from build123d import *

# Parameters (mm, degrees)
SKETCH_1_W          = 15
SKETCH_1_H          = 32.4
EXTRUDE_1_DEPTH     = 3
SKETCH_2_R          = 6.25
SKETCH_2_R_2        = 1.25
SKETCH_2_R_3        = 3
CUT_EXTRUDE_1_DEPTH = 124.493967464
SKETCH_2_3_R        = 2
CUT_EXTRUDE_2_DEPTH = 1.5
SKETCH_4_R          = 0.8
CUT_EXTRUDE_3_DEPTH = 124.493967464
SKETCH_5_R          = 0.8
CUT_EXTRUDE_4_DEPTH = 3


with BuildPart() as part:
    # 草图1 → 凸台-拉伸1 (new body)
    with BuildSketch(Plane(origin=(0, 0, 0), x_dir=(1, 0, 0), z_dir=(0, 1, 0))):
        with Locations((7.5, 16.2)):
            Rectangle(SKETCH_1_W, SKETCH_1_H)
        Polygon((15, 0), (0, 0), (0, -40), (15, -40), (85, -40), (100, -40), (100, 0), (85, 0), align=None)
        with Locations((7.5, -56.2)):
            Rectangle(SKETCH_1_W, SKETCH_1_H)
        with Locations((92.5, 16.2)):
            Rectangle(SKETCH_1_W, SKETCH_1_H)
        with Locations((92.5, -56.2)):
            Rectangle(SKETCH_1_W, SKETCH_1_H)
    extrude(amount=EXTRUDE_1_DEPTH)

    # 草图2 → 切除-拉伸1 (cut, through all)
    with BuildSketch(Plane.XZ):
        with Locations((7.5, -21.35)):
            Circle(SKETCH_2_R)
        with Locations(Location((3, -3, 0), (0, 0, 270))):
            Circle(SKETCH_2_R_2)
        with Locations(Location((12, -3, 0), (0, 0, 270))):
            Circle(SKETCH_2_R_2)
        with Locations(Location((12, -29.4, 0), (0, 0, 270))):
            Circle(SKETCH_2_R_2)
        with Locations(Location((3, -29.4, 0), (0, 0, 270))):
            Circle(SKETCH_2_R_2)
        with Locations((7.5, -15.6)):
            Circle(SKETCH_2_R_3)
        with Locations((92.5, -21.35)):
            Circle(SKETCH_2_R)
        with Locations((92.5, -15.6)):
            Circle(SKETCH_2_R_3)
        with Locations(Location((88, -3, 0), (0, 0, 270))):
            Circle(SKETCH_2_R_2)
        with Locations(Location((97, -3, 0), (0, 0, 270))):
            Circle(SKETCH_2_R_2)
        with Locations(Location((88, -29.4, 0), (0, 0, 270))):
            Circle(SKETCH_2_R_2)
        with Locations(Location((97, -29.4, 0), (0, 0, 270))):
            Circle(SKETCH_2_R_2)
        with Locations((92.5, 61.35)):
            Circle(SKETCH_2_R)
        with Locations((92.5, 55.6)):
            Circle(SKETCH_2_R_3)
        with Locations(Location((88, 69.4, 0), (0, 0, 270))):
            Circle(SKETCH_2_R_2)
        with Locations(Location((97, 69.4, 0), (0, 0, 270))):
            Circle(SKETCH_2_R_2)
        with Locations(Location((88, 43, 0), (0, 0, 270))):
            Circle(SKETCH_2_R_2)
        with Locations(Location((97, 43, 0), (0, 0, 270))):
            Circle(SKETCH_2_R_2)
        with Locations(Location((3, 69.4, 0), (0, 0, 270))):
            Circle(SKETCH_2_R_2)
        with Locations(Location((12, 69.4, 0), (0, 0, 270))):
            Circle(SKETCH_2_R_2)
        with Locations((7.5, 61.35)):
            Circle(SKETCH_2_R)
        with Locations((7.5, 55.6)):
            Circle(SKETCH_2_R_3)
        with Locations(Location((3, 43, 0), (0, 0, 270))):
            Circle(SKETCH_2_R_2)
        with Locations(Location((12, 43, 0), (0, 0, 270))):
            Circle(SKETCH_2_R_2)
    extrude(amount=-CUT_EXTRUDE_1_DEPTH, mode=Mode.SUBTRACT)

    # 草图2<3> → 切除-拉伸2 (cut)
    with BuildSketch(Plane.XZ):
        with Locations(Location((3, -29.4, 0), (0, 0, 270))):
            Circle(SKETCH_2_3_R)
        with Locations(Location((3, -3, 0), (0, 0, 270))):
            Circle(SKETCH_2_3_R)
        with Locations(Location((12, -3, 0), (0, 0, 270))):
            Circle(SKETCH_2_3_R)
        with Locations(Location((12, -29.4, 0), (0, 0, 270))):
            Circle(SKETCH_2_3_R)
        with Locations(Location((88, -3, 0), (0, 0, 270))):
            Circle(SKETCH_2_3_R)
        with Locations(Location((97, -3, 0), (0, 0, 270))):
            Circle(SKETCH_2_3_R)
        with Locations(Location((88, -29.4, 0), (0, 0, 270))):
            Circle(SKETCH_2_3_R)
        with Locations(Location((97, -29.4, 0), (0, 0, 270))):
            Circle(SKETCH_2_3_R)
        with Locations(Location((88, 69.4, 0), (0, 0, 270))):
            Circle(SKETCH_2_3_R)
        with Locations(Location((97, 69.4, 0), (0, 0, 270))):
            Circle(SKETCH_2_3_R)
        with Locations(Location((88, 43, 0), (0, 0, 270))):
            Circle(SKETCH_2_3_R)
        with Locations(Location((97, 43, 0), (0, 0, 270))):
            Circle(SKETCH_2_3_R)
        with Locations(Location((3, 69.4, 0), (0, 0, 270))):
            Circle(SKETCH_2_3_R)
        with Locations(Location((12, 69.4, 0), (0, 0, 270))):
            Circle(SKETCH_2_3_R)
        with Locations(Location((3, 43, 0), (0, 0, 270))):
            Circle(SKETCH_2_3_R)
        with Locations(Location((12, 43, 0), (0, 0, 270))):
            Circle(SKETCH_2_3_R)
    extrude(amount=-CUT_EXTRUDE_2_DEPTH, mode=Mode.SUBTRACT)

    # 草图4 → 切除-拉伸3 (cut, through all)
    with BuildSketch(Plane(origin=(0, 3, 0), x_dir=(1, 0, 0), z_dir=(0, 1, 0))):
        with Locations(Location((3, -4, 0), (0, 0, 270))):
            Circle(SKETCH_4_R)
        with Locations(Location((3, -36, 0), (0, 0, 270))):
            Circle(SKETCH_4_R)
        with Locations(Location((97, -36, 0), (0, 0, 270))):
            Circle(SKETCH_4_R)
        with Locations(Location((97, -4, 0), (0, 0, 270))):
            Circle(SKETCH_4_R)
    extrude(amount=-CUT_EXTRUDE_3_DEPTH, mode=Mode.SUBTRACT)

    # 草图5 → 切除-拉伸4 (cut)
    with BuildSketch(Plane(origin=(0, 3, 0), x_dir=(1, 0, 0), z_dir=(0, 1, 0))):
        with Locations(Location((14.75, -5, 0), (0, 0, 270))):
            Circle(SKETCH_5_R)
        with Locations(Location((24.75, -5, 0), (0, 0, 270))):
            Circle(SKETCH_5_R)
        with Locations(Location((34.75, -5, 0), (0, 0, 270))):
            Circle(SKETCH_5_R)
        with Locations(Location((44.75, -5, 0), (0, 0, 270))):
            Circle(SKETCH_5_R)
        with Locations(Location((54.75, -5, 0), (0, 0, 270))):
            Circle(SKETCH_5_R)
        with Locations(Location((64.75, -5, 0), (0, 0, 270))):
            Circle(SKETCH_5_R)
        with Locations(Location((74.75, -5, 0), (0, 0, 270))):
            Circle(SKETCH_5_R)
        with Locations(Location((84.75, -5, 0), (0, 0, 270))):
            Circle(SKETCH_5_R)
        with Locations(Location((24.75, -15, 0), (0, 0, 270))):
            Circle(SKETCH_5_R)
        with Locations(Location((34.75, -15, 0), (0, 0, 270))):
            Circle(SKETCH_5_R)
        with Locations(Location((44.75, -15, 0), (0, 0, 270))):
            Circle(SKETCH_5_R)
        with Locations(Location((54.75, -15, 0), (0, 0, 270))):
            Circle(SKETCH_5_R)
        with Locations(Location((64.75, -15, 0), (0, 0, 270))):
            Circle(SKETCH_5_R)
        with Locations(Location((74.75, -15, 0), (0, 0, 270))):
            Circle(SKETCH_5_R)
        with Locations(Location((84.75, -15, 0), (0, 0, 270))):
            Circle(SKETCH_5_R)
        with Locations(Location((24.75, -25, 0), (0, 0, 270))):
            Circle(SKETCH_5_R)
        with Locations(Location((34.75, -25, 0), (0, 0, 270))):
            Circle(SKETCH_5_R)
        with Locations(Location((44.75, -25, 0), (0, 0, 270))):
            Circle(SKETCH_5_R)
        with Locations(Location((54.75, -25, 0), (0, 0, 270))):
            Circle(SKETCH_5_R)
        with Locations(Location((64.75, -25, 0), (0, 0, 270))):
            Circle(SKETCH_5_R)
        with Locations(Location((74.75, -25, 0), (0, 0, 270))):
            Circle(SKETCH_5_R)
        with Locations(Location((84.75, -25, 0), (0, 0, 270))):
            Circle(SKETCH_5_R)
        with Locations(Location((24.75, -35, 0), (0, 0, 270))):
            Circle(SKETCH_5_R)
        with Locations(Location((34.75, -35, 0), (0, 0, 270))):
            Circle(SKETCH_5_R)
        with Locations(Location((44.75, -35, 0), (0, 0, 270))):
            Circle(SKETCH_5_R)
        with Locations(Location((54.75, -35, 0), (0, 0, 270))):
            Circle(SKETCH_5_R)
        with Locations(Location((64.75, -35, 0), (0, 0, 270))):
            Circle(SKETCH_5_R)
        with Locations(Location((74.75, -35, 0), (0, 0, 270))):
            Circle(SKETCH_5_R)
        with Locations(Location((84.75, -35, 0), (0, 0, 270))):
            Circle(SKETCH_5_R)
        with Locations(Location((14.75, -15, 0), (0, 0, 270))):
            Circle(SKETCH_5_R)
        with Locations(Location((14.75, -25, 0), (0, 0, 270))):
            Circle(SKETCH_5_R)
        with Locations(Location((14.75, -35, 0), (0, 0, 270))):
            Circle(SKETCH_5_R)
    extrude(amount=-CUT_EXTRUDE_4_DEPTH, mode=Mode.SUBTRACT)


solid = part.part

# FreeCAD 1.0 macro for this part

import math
import FreeCAD as App
import Part
import Sketcher

V = App.Vector

doc = App.newDocument("Part")
body = doc.addObject("PartDesign::Body", "Body")

# Sketch on XZ plane
sketch1 = body.newObject("Sketcher::SketchObject", "Sketch")
sketch1.AttachmentSupport = (doc.getObject("XZ_Plane"), [""])
sketch1.MapMode = "FlatFace"
sketch1.addGeometry(Part.LineSegment(V(0, -32.4, 0), V(0, 72.4, 0)), False)
sketch1.addGeometry(Part.LineSegment(V(0, 72.4, 0), V(15, 72.4, 0)), False)
sketch1.addGeometry(Part.LineSegment(V(15, 72.4, 0), V(15, 40, 0)), False)
sketch1.addGeometry(Part.LineSegment(V(15, 40, 0), V(85, 40, 0)), False)
sketch1.addGeometry(Part.LineSegment(V(85, 40, 0), V(85, 72.4, 0)), False)
sketch1.addGeometry(Part.LineSegment(V(85, 72.4, 0), V(100, 72.4, 0)), False)
sketch1.addGeometry(Part.LineSegment(V(100, 72.4, 0), V(100, -32.4, 0)), False)
sketch1.addGeometry(Part.LineSegment(V(100, -32.4, 0), V(85, -32.4, 0)), False)
sketch1.addGeometry(Part.LineSegment(V(85, -32.4, 0), V(85, 0, 0)), False)
sketch1.addGeometry(Part.LineSegment(V(85, 0, 0), V(15, 0, 0)), False)
sketch1.addGeometry(Part.LineSegment(V(15, 0, 0), V(15, -32.4, 0)), False)
sketch1.addGeometry(Part.LineSegment(V(15, -32.4, 0), V(0, -32.4, 0)), False)
sketch1.addConstraint(Sketcher.Constraint("Coincident", 0, 2, 1, 1))
sketch1.addConstraint(Sketcher.Constraint("Coincident", 1, 2, 2, 1))
sketch1.addConstraint(Sketcher.Constraint("Coincident", 2, 2, 3, 1))
sketch1.addConstraint(Sketcher.Constraint("Coincident", 3, 2, 4, 1))
sketch1.addConstraint(Sketcher.Constraint("Coincident", 4, 2, 5, 1))
sketch1.addConstraint(Sketcher.Constraint("Coincident", 5, 2, 6, 1))
sketch1.addConstraint(Sketcher.Constraint("Coincident", 6, 2, 7, 1))
sketch1.addConstraint(Sketcher.Constraint("Coincident", 7, 2, 8, 1))
sketch1.addConstraint(Sketcher.Constraint("Coincident", 8, 2, 9, 1))
sketch1.addConstraint(Sketcher.Constraint("Coincident", 9, 2, 10, 1))
sketch1.addConstraint(Sketcher.Constraint("Coincident", 10, 2, 11, 1))
sketch1.addConstraint(Sketcher.Constraint("Coincident", 11, 2, 0, 1))
sketch1.addConstraint(Sketcher.Constraint("Vertical", 0))
sketch1.addConstraint(Sketcher.Constraint("Horizontal", 1))
sketch1.addConstraint(Sketcher.Constraint("Vertical", 2))
sketch1.addConstraint(Sketcher.Constraint("Horizontal", 3))
sketch1.addConstraint(Sketcher.Constraint("Vertical", 4))
sketch1.addConstraint(Sketcher.Constraint("Horizontal", 5))
sketch1.addConstraint(Sketcher.Constraint("Vertical", 6))
sketch1.addConstraint(Sketcher.Constraint("Horizontal", 7))
sketch1.addConstraint(Sketcher.Constraint("Vertical", 8))
sketch1.addConstraint(Sketcher.Constraint("Horizontal", 9))
sketch1.addConstraint(Sketcher.Constraint("Vertical", 10))
sketch1.addConstraint(Sketcher.Constraint("Horizontal", 11))
sketch1.addConstraint(Sketcher.Constraint("PointOnObject", 0, 2, -2))
sketch1.addConstraint(Sketcher.Constraint("PointOnObject", 8, 2, -1))
sketch1.addConstraint(Sketcher.Constraint("Horizontal", 1, 2, 4, 2))
sketch1.addConstraint(Sketcher.Constraint("Horizontal", 7, 2, 10, 2))
sketch1.addConstraint(Sketcher.Constraint("Vertical", 4, 2, 7, 2))
sketch1.addConstraint(Sketcher.Constraint("Vertical", 2, 2, 9, 2))
sketch1.addConstraint(Sketcher.Constraint("Equal", 1, 5))
sketch1.addConstraint(Sketcher.Constraint("Equal", 4, 8))
sketch1.addConstraint(Sketcher.Constraint("DistanceX", 1, 1, 1, 2, 15.0))
sketch1.addConstraint(Sketcher.Constraint("DistanceX", 3, 1, 3, 2, 70.0))
sketch1.addConstraint(Sketcher.Constraint("DistanceY", 0, 1, 0, 2, 104.8))
sketch1.addConstraint(Sketcher.Constraint("DistanceY", 2, 2, 2, 1, 32.4))
pad1 = body.newObject("PartDesign::Pad", "Pad")
pad1.Profile = sketch1
pad1.Length = 3
pad1.Reversed = True

# Sketch on XZ plane
sketch2 = body.newObject("Sketcher::SketchObject", "Sketch001")
sketch2.AttachmentSupport = (doc.getObject("XZ_Plane"), [""])
sketch2.MapMode = "FlatFace"
sketch2.addGeometry(Part.ArcOfCircle(Part.Circle(V(7.5, -21.35, 0), V(0, 0, 1), 6.25), math.radians(118.56672), math.radians(421.43328)), False)
sketch2.addGeometry(Part.ArcOfCircle(Part.Circle(V(7.5, -15.6, 0), V(0, 0, 1), 3), math.radians(-4.988542), math.radians(184.988542)), False)
sketch2.addGeometry(Part.Circle(V(3, -3, 0), V(0, 0, 1), 1.25), False)
sketch2.addGeometry(Part.Circle(V(12, -3, 0), V(0, 0, 1), 1.25), False)
sketch2.addGeometry(Part.Circle(V(12, -29.4, 0), V(0, 0, 1), 1.25), False)
sketch2.addGeometry(Part.Circle(V(3, -29.4, 0), V(0, 0, 1), 1.25), False)
sketch2.addGeometry(Part.ArcOfCircle(Part.Circle(V(92.5, -21.35, 0), V(0, 0, 1), 6.25), math.radians(118.56672), math.radians(421.43328)), False)
sketch2.addGeometry(Part.ArcOfCircle(Part.Circle(V(92.5, -15.6, 0), V(0, 0, 1), 3), math.radians(-4.988542), math.radians(184.988542)), False)
sketch2.addGeometry(Part.Circle(V(88, -3, 0), V(0, 0, 1), 1.25), False)
sketch2.addGeometry(Part.Circle(V(97, -3, 0), V(0, 0, 1), 1.25), False)
sketch2.addGeometry(Part.Circle(V(88, -29.4, 0), V(0, 0, 1), 1.25), False)
sketch2.addGeometry(Part.Circle(V(97, -29.4, 0), V(0, 0, 1), 1.25), False)
sketch2.addGeometry(Part.ArcOfCircle(Part.Circle(V(92.5, 61.35, 0), V(0, 0, 1), 6.25), math.radians(-61.43328), math.radians(241.43328)), False)
sketch2.addGeometry(Part.ArcOfCircle(Part.Circle(V(92.5, 55.6, 0), V(0, 0, 1), 3), math.radians(175.011458), math.radians(364.988542)), False)
sketch2.addGeometry(Part.Circle(V(88, 69.4, 0), V(0, 0, 1), 1.25), False)
sketch2.addGeometry(Part.Circle(V(97, 69.4, 0), V(0, 0, 1), 1.25), False)
sketch2.addGeometry(Part.Circle(V(88, 43, 0), V(0, 0, 1), 1.25), False)
sketch2.addGeometry(Part.Circle(V(97, 43, 0), V(0, 0, 1), 1.25), False)
sketch2.addGeometry(Part.Circle(V(3, 69.4, 0), V(0, 0, 1), 1.25), False)
sketch2.addGeometry(Part.Circle(V(12, 69.4, 0), V(0, 0, 1), 1.25), False)
sketch2.addGeometry(Part.ArcOfCircle(Part.Circle(V(7.5, 61.35, 0), V(0, 0, 1), 6.25), math.radians(-61.43328), math.radians(241.43328)), False)
sketch2.addGeometry(Part.ArcOfCircle(Part.Circle(V(7.5, 55.6, 0), V(0, 0, 1), 3), math.radians(175.011458), math.radians(364.988542)), False)
sketch2.addGeometry(Part.Circle(V(3, 43, 0), V(0, 0, 1), 1.25), False)
sketch2.addGeometry(Part.Circle(V(12, 43, 0), V(0, 0, 1), 1.25), False)
sketch2.addConstraint(Sketcher.Constraint("Coincident", 0, 1, 1, 2))
sketch2.addConstraint(Sketcher.Constraint("Coincident", 1, 1, 0, 2))
sketch2.addConstraint(Sketcher.Constraint("Coincident", 6, 1, 7, 2))
sketch2.addConstraint(Sketcher.Constraint("Coincident", 7, 1, 6, 2))
sketch2.addConstraint(Sketcher.Constraint("Coincident", 12, 1, 13, 2))
sketch2.addConstraint(Sketcher.Constraint("Coincident", 13, 1, 12, 2))
sketch2.addConstraint(Sketcher.Constraint("Coincident", 20, 1, 21, 2))
sketch2.addConstraint(Sketcher.Constraint("Coincident", 21, 1, 20, 2))
sketch2.addConstraint(Sketcher.Constraint("Equal", 2, 3))
sketch2.addConstraint(Sketcher.Constraint("Equal", 3, 4))
sketch2.addConstraint(Sketcher.Constraint("Equal", 4, 5))
sketch2.addConstraint(Sketcher.Constraint("Equal", 0, 6))
sketch2.addConstraint(Sketcher.Constraint("Equal", 1, 7))
sketch2.addConstraint(Sketcher.Constraint("Equal", 5, 8))
sketch2.addConstraint(Sketcher.Constraint("Equal", 8, 9))
sketch2.addConstraint(Sketcher.Constraint("Equal", 9, 10))
sketch2.addConstraint(Sketcher.Constraint("Equal", 10, 11))
sketch2.addConstraint(Sketcher.Constraint("Equal", 6, 12))
sketch2.addConstraint(Sketcher.Constraint("Equal", 7, 13))
sketch2.addConstraint(Sketcher.Constraint("Equal", 11, 14))
sketch2.addConstraint(Sketcher.Constraint("Equal", 14, 15))
sketch2.addConstraint(Sketcher.Constraint("Equal", 15, 16))
sketch2.addConstraint(Sketcher.Constraint("Equal", 16, 17))
sketch2.addConstraint(Sketcher.Constraint("Equal", 17, 18))
sketch2.addConstraint(Sketcher.Constraint("Equal", 18, 19))
sketch2.addConstraint(Sketcher.Constraint("Equal", 12, 20))
sketch2.addConstraint(Sketcher.Constraint("Equal", 13, 21))
sketch2.addConstraint(Sketcher.Constraint("Equal", 19, 22))
sketch2.addConstraint(Sketcher.Constraint("Equal", 22, 23))
sketch2.addConstraint(Sketcher.Constraint("Horizontal", 2, 3, 3, 3))
sketch2.addConstraint(Sketcher.Constraint("Horizontal", 4, 3, 5, 3))
sketch2.addConstraint(Sketcher.Constraint("Horizontal", 0, 3, 6, 3))
sketch2.addConstraint(Sketcher.Constraint("Horizontal", 1, 3, 7, 3))
sketch2.addConstraint(Sketcher.Constraint("Horizontal", 3, 3, 8, 3))
sketch2.addConstraint(Sketcher.Constraint("Horizontal", 8, 3, 9, 3))
sketch2.addConstraint(Sketcher.Constraint("Horizontal", 5, 3, 10, 3))
sketch2.addConstraint(Sketcher.Constraint("Horizontal", 10, 3, 11, 3))
sketch2.addConstraint(Sketcher.Constraint("Horizontal", 14, 3, 15, 3))
sketch2.addConstraint(Sketcher.Constraint("Horizontal", 16, 3, 17, 3))
sketch2.addConstraint(Sketcher.Constraint("Horizontal", 15, 3, 18, 3))
sketch2.addConstraint(Sketcher.Constraint("Horizontal", 18, 3, 19, 3))
sketch2.addConstraint(Sketcher.Constraint("Horizontal", 12, 3, 20, 3))
sketch2.addConstraint(Sketcher.Constraint("Horizontal", 13, 3, 21, 3))
sketch2.addConstraint(Sketcher.Constraint("Horizontal", 17, 3, 22, 3))
sketch2.addConstraint(Sketcher.Constraint("Horizontal", 22, 3, 23, 3))
sketch2.addConstraint(Sketcher.Constraint("Horizontal", 0, 1, 1, 1))
sketch2.addConstraint(Sketcher.Constraint("Horizontal", 1, 1, 6, 1))
sketch2.addConstraint(Sketcher.Constraint("Horizontal", 12, 1, 13, 1))
sketch2.addConstraint(Sketcher.Constraint("Horizontal", 13, 1, 20, 1))
sketch2.addConstraint(Sketcher.Constraint("Vertical", 3, 3, 4, 3))
sketch2.addConstraint(Sketcher.Constraint("Vertical", 2, 3, 5, 3))
sketch2.addConstraint(Sketcher.Constraint("Vertical", 8, 3, 10, 3))
sketch2.addConstraint(Sketcher.Constraint("Vertical", 9, 3, 11, 3))
sketch2.addConstraint(Sketcher.Constraint("Vertical", 7, 3, 12, 3))
sketch2.addConstraint(Sketcher.Constraint("Vertical", 10, 3, 14, 3))
sketch2.addConstraint(Sketcher.Constraint("Vertical", 11, 3, 15, 3))
sketch2.addConstraint(Sketcher.Constraint("Vertical", 14, 3, 16, 3))
sketch2.addConstraint(Sketcher.Constraint("Vertical", 15, 3, 17, 3))
sketch2.addConstraint(Sketcher.Constraint("Vertical", 5, 3, 18, 3))
sketch2.addConstraint(Sketcher.Constraint("Vertical", 4, 3, 19, 3))
sketch2.addConstraint(Sketcher.Constraint("Vertical", 1, 3, 20, 3))
sketch2.addConstraint(Sketcher.Constraint("Vertical", 18, 3, 22, 3))
sketch2.addConstraint(Sketcher.Constraint("Vertical", 19, 3, 23, 3))
sketch2.addConstraint(Sketcher.Constraint("Vertical", 7, 1, 12, 1))
sketch2.addConstraint(Sketcher.Constraint("Radius", 1, 3.0))
sketch2.addConstraint(Sketcher.Constraint("Diameter", 2, 2.5))
sketch2.addConstraint(Sketcher.Constraint("Radius", 0, 6.25))
sketch2.addConstraint(Sketcher.Constraint("DistanceX", -1, 1, 2, 3, 3.0))
sketch2.addConstraint(Sketcher.Constraint("DistanceY", 2, 3, -1, 1, 3.0))
sketch2.addConstraint(Sketcher.Constraint("DistanceX", -1, 1, 3, 3, 12.0))
sketch2.addConstraint(Sketcher.Constraint("DistanceX", -1, 1, 8, 3, 88.0))
sketch2.addConstraint(Sketcher.Constraint("DistanceX", -1, 1, 9, 3, 97.0))
sketch2.addConstraint(Sketcher.Constraint("DistanceY", -1, 1, 16, 3, 43.0))
sketch2.addConstraint(Sketcher.Constraint("DistanceX", 0, 3, 6, 3, 85.0))
sketch2.addConstraint(Sketcher.Constraint("DistanceY", 7, 3, 14, 3, 85.0))
sketch2.addConstraint(Sketcher.Constraint("DistanceX", -1, 1, 0, 3, 7.5))
sketch2.addConstraint(Sketcher.Constraint("DistanceY", 1, 3, -1, 1, 15.6))
sketch2.addConstraint(Sketcher.Constraint("DistanceY", 4, 3, -1, 1, 29.4))
sketch2.addConstraint(Sketcher.Constraint("DistanceY", -1, 1, 13, 3, 55.6))
sketch2.addConstraint(Sketcher.Constraint("DistanceY", 6, 3, 12, 3, 82.7))
pocket1 = body.newObject("PartDesign::Pocket", "Pocket")
pocket1.Profile = sketch2
pocket1.Type = "ThroughAll"

# Sketch on XZ plane
sketch3 = body.newObject("Sketcher::SketchObject", "Sketch002")
sketch3.AttachmentSupport = (doc.getObject("XZ_Plane"), [""])
sketch3.MapMode = "FlatFace"
sketch3.addGeometry(Part.Circle(V(3, -29.4, 0), V(0, 0, 1), 2), False)
sketch3.addGeometry(Part.Circle(V(3, -3, 0), V(0, 0, 1), 2), False)
sketch3.addGeometry(Part.Circle(V(12, -3, 0), V(0, 0, 1), 2), False)
sketch3.addGeometry(Part.Circle(V(12, -29.4, 0), V(0, 0, 1), 2), False)
sketch3.addGeometry(Part.Circle(V(88, -3, 0), V(0, 0, 1), 2), False)
sketch3.addGeometry(Part.Circle(V(97, -3, 0), V(0, 0, 1), 2), False)
sketch3.addGeometry(Part.Circle(V(88, -29.4, 0), V(0, 0, 1), 2), False)
sketch3.addGeometry(Part.Circle(V(97, -29.4, 0), V(0, 0, 1), 2), False)
sketch3.addGeometry(Part.Circle(V(88, 69.4, 0), V(0, 0, 1), 2), False)
sketch3.addGeometry(Part.Circle(V(97, 69.4, 0), V(0, 0, 1), 2), False)
sketch3.addGeometry(Part.Circle(V(88, 43, 0), V(0, 0, 1), 2), False)
sketch3.addGeometry(Part.Circle(V(97, 43, 0), V(0, 0, 1), 2), False)
sketch3.addGeometry(Part.Circle(V(3, 69.4, 0), V(0, 0, 1), 2), False)
sketch3.addGeometry(Part.Circle(V(12, 69.4, 0), V(0, 0, 1), 2), False)
sketch3.addGeometry(Part.Circle(V(3, 43, 0), V(0, 0, 1), 2), False)
sketch3.addGeometry(Part.Circle(V(12, 43, 0), V(0, 0, 1), 2), False)
sketch3.addConstraint(Sketcher.Constraint("Equal", 0, 1))
sketch3.addConstraint(Sketcher.Constraint("Equal", 1, 2))
sketch3.addConstraint(Sketcher.Constraint("Equal", 2, 3))
sketch3.addConstraint(Sketcher.Constraint("Equal", 3, 4))
sketch3.addConstraint(Sketcher.Constraint("Equal", 4, 5))
sketch3.addConstraint(Sketcher.Constraint("Equal", 5, 6))
sketch3.addConstraint(Sketcher.Constraint("Equal", 6, 7))
sketch3.addConstraint(Sketcher.Constraint("Equal", 7, 8))
sketch3.addConstraint(Sketcher.Constraint("Equal", 8, 9))
sketch3.addConstraint(Sketcher.Constraint("Equal", 9, 10))
sketch3.addConstraint(Sketcher.Constraint("Equal", 10, 11))
sketch3.addConstraint(Sketcher.Constraint("Equal", 11, 12))
sketch3.addConstraint(Sketcher.Constraint("Equal", 12, 13))
sketch3.addConstraint(Sketcher.Constraint("Equal", 13, 14))
sketch3.addConstraint(Sketcher.Constraint("Equal", 14, 15))
sketch3.addConstraint(Sketcher.Constraint("Horizontal", 1, 3, 2, 3))
sketch3.addConstraint(Sketcher.Constraint("Horizontal", 0, 3, 3, 3))
sketch3.addConstraint(Sketcher.Constraint("Horizontal", 2, 3, 4, 3))
sketch3.addConstraint(Sketcher.Constraint("Horizontal", 4, 3, 5, 3))
sketch3.addConstraint(Sketcher.Constraint("Horizontal", 3, 3, 6, 3))
sketch3.addConstraint(Sketcher.Constraint("Horizontal", 6, 3, 7, 3))
sketch3.addConstraint(Sketcher.Constraint("Horizontal", 8, 3, 9, 3))
sketch3.addConstraint(Sketcher.Constraint("Horizontal", 10, 3, 11, 3))
sketch3.addConstraint(Sketcher.Constraint("Horizontal", 9, 3, 12, 3))
sketch3.addConstraint(Sketcher.Constraint("Horizontal", 12, 3, 13, 3))
sketch3.addConstraint(Sketcher.Constraint("Horizontal", 11, 3, 14, 3))
sketch3.addConstraint(Sketcher.Constraint("Horizontal", 14, 3, 15, 3))
sketch3.addConstraint(Sketcher.Constraint("Vertical", 0, 3, 1, 3))
sketch3.addConstraint(Sketcher.Constraint("Vertical", 2, 3, 3, 3))
sketch3.addConstraint(Sketcher.Constraint("Vertical", 4, 3, 6, 3))
sketch3.addConstraint(Sketcher.Constraint("Vertical", 5, 3, 7, 3))
sketch3.addConstraint(Sketcher.Constraint("Vertical", 6, 3, 8, 3))
sketch3.addConstraint(Sketcher.Constraint("Vertical", 7, 3, 9, 3))
sketch3.addConstraint(Sketcher.Constraint("Vertical", 8, 3, 10, 3))
sketch3.addConstraint(Sketcher.Constraint("Vertical", 9, 3, 11, 3))
sketch3.addConstraint(Sketcher.Constraint("Vertical", 1, 3, 12, 3))
sketch3.addConstraint(Sketcher.Constraint("Vertical", 3, 3, 13, 3))
sketch3.addConstraint(Sketcher.Constraint("Vertical", 12, 3, 14, 3))
sketch3.addConstraint(Sketcher.Constraint("Vertical", 13, 3, 15, 3))
sketch3.addConstraint(Sketcher.Constraint("Diameter", 0, 4.0))
sketch3.addConstraint(Sketcher.Constraint("DistanceX", -1, 1, 0, 3, 3.0))
sketch3.addConstraint(Sketcher.Constraint("DistanceY", 1, 3, -1, 1, 3.0))
sketch3.addConstraint(Sketcher.Constraint("DistanceX", -1, 1, 2, 3, 12.0))
sketch3.addConstraint(Sketcher.Constraint("DistanceX", -1, 1, 4, 3, 88.0))
sketch3.addConstraint(Sketcher.Constraint("DistanceX", -1, 1, 5, 3, 97.0))
sketch3.addConstraint(Sketcher.Constraint("DistanceY", -1, 1, 10, 3, 43.0))
sketch3.addConstraint(Sketcher.Constraint("DistanceY", 0, 3, -1, 1, 29.4))
sketch3.addConstraint(Sketcher.Constraint("DistanceY", -1, 1, 8, 3, 69.4))
pocket2 = body.newObject("PartDesign::Pocket", "Pocket001")
pocket2.Profile = sketch3
pocket2.Length = 1.5

# Sketch on XZ plane
sketch4 = body.newObject("Sketcher::SketchObject", "Sketch003")
sketch4.AttachmentSupport = (doc.getObject("XZ_Plane"), [""])
sketch4.MapMode = "FlatFace"
sketch4.AttachmentOffset = App.Placement(V(0, 0, -3), App.Rotation())
sketch4.addGeometry(Part.Circle(V(3, 4, 0), V(0, 0, 1), 0.8), False)
sketch4.addGeometry(Part.Circle(V(3, 36, 0), V(0, 0, 1), 0.8), False)
sketch4.addGeometry(Part.Circle(V(97, 36, 0), V(0, 0, 1), 0.8), False)
sketch4.addGeometry(Part.Circle(V(97, 4, 0), V(0, 0, 1), 0.8), False)
sketch4.addConstraint(Sketcher.Constraint("Equal", 0, 1))
sketch4.addConstraint(Sketcher.Constraint("Equal", 1, 2))
sketch4.addConstraint(Sketcher.Constraint("Equal", 2, 3))
sketch4.addConstraint(Sketcher.Constraint("Horizontal", 1, 3, 2, 3))
sketch4.addConstraint(Sketcher.Constraint("Horizontal", 0, 3, 3, 3))
sketch4.addConstraint(Sketcher.Constraint("Vertical", 0, 3, 1, 3))
sketch4.addConstraint(Sketcher.Constraint("Vertical", 2, 3, 3, 3))
sketch4.addConstraint(Sketcher.Constraint("Diameter", 0, 1.6))
sketch4.addConstraint(Sketcher.Constraint("DistanceX", -1, 1, 0, 3, 3.0))
sketch4.addConstraint(Sketcher.Constraint("DistanceY", -1, 1, 0, 3, 4.0))
sketch4.addConstraint(Sketcher.Constraint("DistanceY", -1, 1, 1, 3, 36.0))
sketch4.addConstraint(Sketcher.Constraint("DistanceX", -1, 1, 2, 3, 97.0))
pocket3 = body.newObject("PartDesign::Pocket", "Pocket002")
pocket3.Profile = sketch4
pocket3.Type = "ThroughAll"
pocket3.Reversed = True

# Sketch on XZ plane
sketch5 = body.newObject("Sketcher::SketchObject", "Sketch004")
sketch5.AttachmentSupport = (doc.getObject("XZ_Plane"), [""])
sketch5.MapMode = "FlatFace"
sketch5.AttachmentOffset = App.Placement(V(0, 0, -3), App.Rotation())
sketch5.addGeometry(Part.Circle(V(14.75, 5, 0), V(0, 0, 1), 0.8), False)
sketch5.addGeometry(Part.Circle(V(24.75, 5, 0), V(0, 0, 1), 0.8), False)
sketch5.addGeometry(Part.Circle(V(34.75, 5, 0), V(0, 0, 1), 0.8), False)
sketch5.addGeometry(Part.Circle(V(44.75, 5, 0), V(0, 0, 1), 0.8), False)
sketch5.addGeometry(Part.Circle(V(54.75, 5, 0), V(0, 0, 1), 0.8), False)
sketch5.addGeometry(Part.Circle(V(64.75, 5, 0), V(0, 0, 1), 0.8), False)
sketch5.addGeometry(Part.Circle(V(74.75, 5, 0), V(0, 0, 1), 0.8), False)
sketch5.addGeometry(Part.Circle(V(84.75, 5, 0), V(0, 0, 1), 0.8), False)
sketch5.addGeometry(Part.Circle(V(24.75, 15, 0), V(0, 0, 1), 0.8), False)
sketch5.addGeometry(Part.Circle(V(34.75, 15, 0), V(0, 0, 1), 0.8), False)
sketch5.addGeometry(Part.Circle(V(44.75, 15, 0), V(0, 0, 1), 0.8), False)
sketch5.addGeometry(Part.Circle(V(54.75, 15, 0), V(0, 0, 1), 0.8), False)
sketch5.addGeometry(Part.Circle(V(64.75, 15, 0), V(0, 0, 1), 0.8), False)
sketch5.addGeometry(Part.Circle(V(74.75, 15, 0), V(0, 0, 1), 0.8), False)
sketch5.addGeometry(Part.Circle(V(84.75, 15, 0), V(0, 0, 1), 0.8), False)
sketch5.addGeometry(Part.Circle(V(24.75, 25, 0), V(0, 0, 1), 0.8), False)
sketch5.addGeometry(Part.Circle(V(34.75, 25, 0), V(0, 0, 1), 0.8), False)
sketch5.addGeometry(Part.Circle(V(44.75, 25, 0), V(0, 0, 1), 0.8), False)
sketch5.addGeometry(Part.Circle(V(54.75, 25, 0), V(0, 0, 1), 0.8), False)
sketch5.addGeometry(Part.Circle(V(64.75, 25, 0), V(0, 0, 1), 0.8), False)
sketch5.addGeometry(Part.Circle(V(74.75, 25, 0), V(0, 0, 1), 0.8), False)
sketch5.addGeometry(Part.Circle(V(84.75, 25, 0), V(0, 0, 1), 0.8), False)
sketch5.addGeometry(Part.Circle(V(24.75, 35, 0), V(0, 0, 1), 0.8), False)
sketch5.addGeometry(Part.Circle(V(34.75, 35, 0), V(0, 0, 1), 0.8), False)
sketch5.addGeometry(Part.Circle(V(44.75, 35, 0), V(0, 0, 1), 0.8), False)
sketch5.addGeometry(Part.Circle(V(54.75, 35, 0), V(0, 0, 1), 0.8), False)
sketch5.addGeometry(Part.Circle(V(64.75, 35, 0), V(0, 0, 1), 0.8), False)
sketch5.addGeometry(Part.Circle(V(74.75, 35, 0), V(0, 0, 1), 0.8), False)
sketch5.addGeometry(Part.Circle(V(84.75, 35, 0), V(0, 0, 1), 0.8), False)
sketch5.addGeometry(Part.Circle(V(14.75, 15, 0), V(0, 0, 1), 0.8), False)
sketch5.addGeometry(Part.Circle(V(14.75, 25, 0), V(0, 0, 1), 0.8), False)
sketch5.addGeometry(Part.Circle(V(14.75, 35, 0), V(0, 0, 1), 0.8), False)
sketch5.addConstraint(Sketcher.Constraint("Equal", 0, 1))
sketch5.addConstraint(Sketcher.Constraint("Equal", 1, 2))
sketch5.addConstraint(Sketcher.Constraint("Equal", 2, 3))
sketch5.addConstraint(Sketcher.Constraint("Equal", 3, 4))
sketch5.addConstraint(Sketcher.Constraint("Equal", 4, 5))
sketch5.addConstraint(Sketcher.Constraint("Equal", 5, 6))
sketch5.addConstraint(Sketcher.Constraint("Equal", 6, 7))
sketch5.addConstraint(Sketcher.Constraint("Equal", 7, 8))
sketch5.addConstraint(Sketcher.Constraint("Equal", 8, 9))
sketch5.addConstraint(Sketcher.Constraint("Equal", 9, 10))
sketch5.addConstraint(Sketcher.Constraint("Equal", 10, 11))
sketch5.addConstraint(Sketcher.Constraint("Equal", 11, 12))
sketch5.addConstraint(Sketcher.Constraint("Equal", 12, 13))
sketch5.addConstraint(Sketcher.Constraint("Equal", 13, 14))
sketch5.addConstraint(Sketcher.Constraint("Equal", 14, 15))
sketch5.addConstraint(Sketcher.Constraint("Equal", 15, 16))
sketch5.addConstraint(Sketcher.Constraint("Equal", 16, 17))
sketch5.addConstraint(Sketcher.Constraint("Equal", 17, 18))
sketch5.addConstraint(Sketcher.Constraint("Equal", 18, 19))
sketch5.addConstraint(Sketcher.Constraint("Equal", 19, 20))
sketch5.addConstraint(Sketcher.Constraint("Equal", 20, 21))
sketch5.addConstraint(Sketcher.Constraint("Equal", 21, 22))
sketch5.addConstraint(Sketcher.Constraint("Equal", 22, 23))
sketch5.addConstraint(Sketcher.Constraint("Equal", 23, 24))
sketch5.addConstraint(Sketcher.Constraint("Equal", 24, 25))
sketch5.addConstraint(Sketcher.Constraint("Equal", 25, 26))
sketch5.addConstraint(Sketcher.Constraint("Equal", 26, 27))
sketch5.addConstraint(Sketcher.Constraint("Equal", 27, 28))
sketch5.addConstraint(Sketcher.Constraint("Equal", 28, 29))
sketch5.addConstraint(Sketcher.Constraint("Equal", 29, 30))
sketch5.addConstraint(Sketcher.Constraint("Equal", 30, 31))
sketch5.addConstraint(Sketcher.Constraint("Horizontal", 0, 3, 1, 3))
sketch5.addConstraint(Sketcher.Constraint("Horizontal", 1, 3, 2, 3))
sketch5.addConstraint(Sketcher.Constraint("Horizontal", 2, 3, 3, 3))
sketch5.addConstraint(Sketcher.Constraint("Horizontal", 3, 3, 4, 3))
sketch5.addConstraint(Sketcher.Constraint("Horizontal", 4, 3, 5, 3))
sketch5.addConstraint(Sketcher.Constraint("Horizontal", 5, 3, 6, 3))
sketch5.addConstraint(Sketcher.Constraint("Horizontal", 6, 3, 7, 3))
sketch5.addConstraint(Sketcher.Constraint("Horizontal", 8, 3, 9, 3))
sketch5.addConstraint(Sketcher.Constraint("Horizontal", 9, 3, 10, 3))
sketch5.addConstraint(Sketcher.Constraint("Horizontal", 10, 3, 11, 3))
sketch5.addConstraint(Sketcher.Constraint("Horizontal", 11, 3, 12, 3))
sketch5.addConstraint(Sketcher.Constraint("Horizontal", 12, 3, 13, 3))
sketch5.addConstraint(Sketcher.Constraint("Horizontal", 13, 3, 14, 3))
sketch5.addConstraint(Sketcher.Constraint("Horizontal", 15, 3, 16, 3))
sketch5.addConstraint(Sketcher.Constraint("Horizontal", 16, 3, 17, 3))
sketch5.addConstraint(Sketcher.Constraint("Horizontal", 17, 3, 18, 3))
sketch5.addConstraint(Sketcher.Constraint("Horizontal", 18, 3, 19, 3))
sketch5.addConstraint(Sketcher.Constraint("Horizontal", 19, 3, 20, 3))
sketch5.addConstraint(Sketcher.Constraint("Horizontal", 20, 3, 21, 3))
sketch5.addConstraint(Sketcher.Constraint("Horizontal", 22, 3, 23, 3))
sketch5.addConstraint(Sketcher.Constraint("Horizontal", 23, 3, 24, 3))
sketch5.addConstraint(Sketcher.Constraint("Horizontal", 24, 3, 25, 3))
sketch5.addConstraint(Sketcher.Constraint("Horizontal", 25, 3, 26, 3))
sketch5.addConstraint(Sketcher.Constraint("Horizontal", 26, 3, 27, 3))
sketch5.addConstraint(Sketcher.Constraint("Horizontal", 27, 3, 28, 3))
sketch5.addConstraint(Sketcher.Constraint("Horizontal", 14, 3, 29, 3))
sketch5.addConstraint(Sketcher.Constraint("Horizontal", 21, 3, 30, 3))
sketch5.addConstraint(Sketcher.Constraint("Horizontal", 28, 3, 31, 3))
sketch5.addConstraint(Sketcher.Constraint("Vertical", 1, 3, 8, 3))
sketch5.addConstraint(Sketcher.Constraint("Vertical", 2, 3, 9, 3))
sketch5.addConstraint(Sketcher.Constraint("Vertical", 3, 3, 10, 3))
sketch5.addConstraint(Sketcher.Constraint("Vertical", 4, 3, 11, 3))
sketch5.addConstraint(Sketcher.Constraint("Vertical", 5, 3, 12, 3))
sketch5.addConstraint(Sketcher.Constraint("Vertical", 6, 3, 13, 3))
sketch5.addConstraint(Sketcher.Constraint("Vertical", 7, 3, 14, 3))
sketch5.addConstraint(Sketcher.Constraint("Vertical", 8, 3, 15, 3))
sketch5.addConstraint(Sketcher.Constraint("Vertical", 9, 3, 16, 3))
sketch5.addConstraint(Sketcher.Constraint("Vertical", 10, 3, 17, 3))
sketch5.addConstraint(Sketcher.Constraint("Vertical", 11, 3, 18, 3))
sketch5.addConstraint(Sketcher.Constraint("Vertical", 12, 3, 19, 3))
sketch5.addConstraint(Sketcher.Constraint("Vertical", 13, 3, 20, 3))
sketch5.addConstraint(Sketcher.Constraint("Vertical", 14, 3, 21, 3))
sketch5.addConstraint(Sketcher.Constraint("Vertical", 15, 3, 22, 3))
sketch5.addConstraint(Sketcher.Constraint("Vertical", 16, 3, 23, 3))
sketch5.addConstraint(Sketcher.Constraint("Vertical", 17, 3, 24, 3))
sketch5.addConstraint(Sketcher.Constraint("Vertical", 18, 3, 25, 3))
sketch5.addConstraint(Sketcher.Constraint("Vertical", 19, 3, 26, 3))
sketch5.addConstraint(Sketcher.Constraint("Vertical", 20, 3, 27, 3))
sketch5.addConstraint(Sketcher.Constraint("Vertical", 21, 3, 28, 3))
sketch5.addConstraint(Sketcher.Constraint("Vertical", 0, 3, 29, 3))
sketch5.addConstraint(Sketcher.Constraint("Vertical", 29, 3, 30, 3))
sketch5.addConstraint(Sketcher.Constraint("Vertical", 30, 3, 31, 3))
sketch5.addConstraint(Sketcher.Constraint("Diameter", 0, 1.6))
sketch5.addConstraint(Sketcher.Constraint("DistanceY", -1, 1, 0, 3, 5.0))
sketch5.addConstraint(Sketcher.Constraint("DistanceY", -1, 1, 8, 3, 15.0))
sketch5.addConstraint(Sketcher.Constraint("DistanceY", -1, 1, 15, 3, 25.0))
sketch5.addConstraint(Sketcher.Constraint("DistanceY", -1, 1, 22, 3, 35.0))
sketch5.addConstraint(Sketcher.Constraint("DistanceX", 0, 3, 1, 3, 10.0))
sketch5.addConstraint(Sketcher.Constraint("DistanceX", 1, 3, 2, 3, 10.0))
sketch5.addConstraint(Sketcher.Constraint("DistanceX", 2, 3, 3, 3, 10.0))
sketch5.addConstraint(Sketcher.Constraint("DistanceX", 3, 3, 4, 3, 10.0))
sketch5.addConstraint(Sketcher.Constraint("DistanceX", 4, 3, 5, 3, 10.0))
sketch5.addConstraint(Sketcher.Constraint("DistanceX", 5, 3, 6, 3, 10.0))
sketch5.addConstraint(Sketcher.Constraint("DistanceX", 6, 3, 7, 3, 10.0))
sketch5.addConstraint(Sketcher.Constraint("DistanceX", -1, 1, 0, 3, 14.75))
pocket4 = body.newObject("PartDesign::Pocket", "Pocket003")
pocket4.Profile = sketch5
pocket4.Length = 3
pocket4.Reversed = True

doc.recompute()
